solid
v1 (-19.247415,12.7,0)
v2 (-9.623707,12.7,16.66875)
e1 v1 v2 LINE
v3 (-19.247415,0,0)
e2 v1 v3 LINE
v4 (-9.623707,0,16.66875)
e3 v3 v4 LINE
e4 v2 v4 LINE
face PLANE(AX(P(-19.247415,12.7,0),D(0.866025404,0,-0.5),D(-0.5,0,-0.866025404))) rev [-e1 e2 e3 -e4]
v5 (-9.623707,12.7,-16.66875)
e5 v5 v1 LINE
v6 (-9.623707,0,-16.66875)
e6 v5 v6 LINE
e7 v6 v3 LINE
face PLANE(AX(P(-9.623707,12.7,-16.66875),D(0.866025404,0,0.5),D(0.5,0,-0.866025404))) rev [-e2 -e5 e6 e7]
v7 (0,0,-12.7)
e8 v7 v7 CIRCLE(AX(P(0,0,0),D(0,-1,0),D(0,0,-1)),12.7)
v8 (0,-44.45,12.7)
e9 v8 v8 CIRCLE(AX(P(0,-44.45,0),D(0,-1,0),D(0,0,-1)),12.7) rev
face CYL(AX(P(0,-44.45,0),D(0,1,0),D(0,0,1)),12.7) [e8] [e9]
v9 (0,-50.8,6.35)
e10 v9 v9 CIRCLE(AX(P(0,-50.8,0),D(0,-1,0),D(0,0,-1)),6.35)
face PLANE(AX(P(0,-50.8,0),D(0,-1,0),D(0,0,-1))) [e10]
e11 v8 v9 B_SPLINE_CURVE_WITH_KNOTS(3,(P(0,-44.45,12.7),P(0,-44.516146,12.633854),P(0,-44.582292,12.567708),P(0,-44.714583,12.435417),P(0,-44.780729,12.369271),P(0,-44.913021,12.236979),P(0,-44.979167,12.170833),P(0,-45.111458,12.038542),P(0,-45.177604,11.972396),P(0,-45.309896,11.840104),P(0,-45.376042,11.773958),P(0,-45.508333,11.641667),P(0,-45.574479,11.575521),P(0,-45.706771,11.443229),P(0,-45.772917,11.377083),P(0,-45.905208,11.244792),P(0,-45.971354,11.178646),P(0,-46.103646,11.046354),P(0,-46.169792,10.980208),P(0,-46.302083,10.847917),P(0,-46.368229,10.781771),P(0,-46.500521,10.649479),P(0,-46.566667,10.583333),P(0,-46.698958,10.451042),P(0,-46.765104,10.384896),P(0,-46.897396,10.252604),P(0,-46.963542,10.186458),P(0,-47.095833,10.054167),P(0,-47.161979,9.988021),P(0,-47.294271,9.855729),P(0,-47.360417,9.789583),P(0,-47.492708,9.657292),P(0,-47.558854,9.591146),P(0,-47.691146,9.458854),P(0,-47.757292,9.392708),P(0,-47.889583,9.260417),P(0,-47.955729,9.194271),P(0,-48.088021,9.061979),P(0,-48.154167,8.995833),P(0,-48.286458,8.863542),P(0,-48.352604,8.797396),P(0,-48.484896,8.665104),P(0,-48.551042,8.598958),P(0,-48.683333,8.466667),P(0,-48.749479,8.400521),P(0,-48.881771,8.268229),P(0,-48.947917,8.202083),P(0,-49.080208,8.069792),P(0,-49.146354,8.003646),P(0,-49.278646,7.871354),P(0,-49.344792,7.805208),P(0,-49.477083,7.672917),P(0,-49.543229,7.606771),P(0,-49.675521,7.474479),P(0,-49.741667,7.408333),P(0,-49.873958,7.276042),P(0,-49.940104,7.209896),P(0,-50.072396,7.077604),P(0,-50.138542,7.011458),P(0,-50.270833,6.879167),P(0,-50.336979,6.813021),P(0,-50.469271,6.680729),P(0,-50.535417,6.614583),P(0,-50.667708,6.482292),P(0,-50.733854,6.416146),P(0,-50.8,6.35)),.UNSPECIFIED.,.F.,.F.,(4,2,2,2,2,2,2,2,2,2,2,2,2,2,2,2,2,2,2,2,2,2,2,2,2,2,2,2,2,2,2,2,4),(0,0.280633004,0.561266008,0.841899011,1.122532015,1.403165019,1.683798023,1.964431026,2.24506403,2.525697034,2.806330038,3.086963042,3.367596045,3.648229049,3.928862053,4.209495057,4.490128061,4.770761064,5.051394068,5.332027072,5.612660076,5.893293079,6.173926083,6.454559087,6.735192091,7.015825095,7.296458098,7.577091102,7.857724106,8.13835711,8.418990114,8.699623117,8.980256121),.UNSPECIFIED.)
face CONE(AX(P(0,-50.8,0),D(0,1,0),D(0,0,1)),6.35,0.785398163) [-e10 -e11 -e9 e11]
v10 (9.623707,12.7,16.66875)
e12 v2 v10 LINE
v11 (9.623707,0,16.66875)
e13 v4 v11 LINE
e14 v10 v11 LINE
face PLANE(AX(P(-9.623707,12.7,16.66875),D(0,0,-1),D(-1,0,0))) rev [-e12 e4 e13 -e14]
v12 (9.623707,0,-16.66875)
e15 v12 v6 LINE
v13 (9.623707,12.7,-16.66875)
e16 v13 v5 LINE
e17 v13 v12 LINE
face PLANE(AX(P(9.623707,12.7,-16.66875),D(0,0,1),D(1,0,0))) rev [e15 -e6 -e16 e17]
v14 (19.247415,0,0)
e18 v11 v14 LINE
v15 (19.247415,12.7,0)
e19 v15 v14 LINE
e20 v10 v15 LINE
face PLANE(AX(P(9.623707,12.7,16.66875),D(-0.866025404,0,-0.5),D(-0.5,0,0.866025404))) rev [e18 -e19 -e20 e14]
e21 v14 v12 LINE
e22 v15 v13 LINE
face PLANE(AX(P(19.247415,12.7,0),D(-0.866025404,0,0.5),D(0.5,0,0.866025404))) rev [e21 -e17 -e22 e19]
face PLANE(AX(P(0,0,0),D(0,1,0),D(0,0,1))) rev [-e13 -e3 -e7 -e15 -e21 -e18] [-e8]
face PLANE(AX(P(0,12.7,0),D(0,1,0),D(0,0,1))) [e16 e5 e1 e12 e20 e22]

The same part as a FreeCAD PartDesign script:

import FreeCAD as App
import Part
import Sketcher
Q = App.Units.Quantity


def edges_at(feature, points):
    """Names of the edges that pass closest to the given points."""
    edges = feature.Shape.Edges
    near = lambda p: min(range(len(edges)), key=lambda i: edges[i].distToShape(Part.Vertex(*p))[0])
    return sorted({f"Edge{near(p) + 1}" for p in points})


def add_polygon(sketch, points):
    """Adds a closed chain of lines whose ends are joined by coincident constraints."""
    first, n = sketch.GeometryCount, len(points)
    for a, b in zip(points, points[1:] + points[:1]):
        sketch.addGeometry(Part.LineSegment(App.Vector(*a, 0), App.Vector(*b, 0)), False)
    for i in range(n):
        sketch.addConstraint(Sketcher.Constraint("Coincident", first + i, 2, first + (i + 1) % n, 1))

doc = App.newDocument("Part")
body = doc.addObject("PartDesign::Body", "Body")

# Sketch on XZ plane
sketch1 = doc.addObject("Sketcher::SketchObject", "Sketch")
body.addObject(sketch1)
sketch1.AttachmentSupport = (doc.XZ_Plane, [""])
sketch1.MapMode = "FlatFace"
add_polygon(sketch1, [(19, 0), (10, -17), (-10, -17), (-19, 0), (-10, 17), (10, 17)])  # lines 0-5
sketch1.addConstraint([
    Sketcher.Constraint("Horizontal", 1),
    Sketcher.Constraint("Horizontal", 4),
    Sketcher.Constraint("Symmetric", 0, 2, 3, 2, -1, 1),
    Sketcher.Constraint("Symmetric", 2, 2, 5, 2, -1, 1),
    Sketcher.Constraint("PointOnObject", 2, 2, -1),
    Sketcher.Constraint("Parallel", 2, 5),
    Sketcher.Constraint("Vertical", 1, 2, 3, 2),
    Sketcher.Constraint("Angle", 0, Q("-120 deg")),
    Sketcher.Constraint("DistanceY", 0, 2, -1, 1, Q("0.65625 in")),
    Sketcher.Constraint("DistanceX", 1, 2, 1, 1, 19.247415),
])
pad1 = doc.addObject("PartDesign::Pad", "Pad")
body.addObject(pad1)
pad1.Profile = sketch1
pad1.Length = Q("0.5 in")
pad1.Reversed = True

# Sketch on XZ plane
sketch2 = doc.addObject("Sketcher::SketchObject", "Sketch001")
body.addObject(sketch2)
sketch2.AttachmentSupport = (doc.XZ_Plane, [""])
sketch2.MapMode = "FlatFace"
sketch2.addGeometry(Part.Circle(App.Vector(0, 0, 0), App.Vector(0, 0, 1), 13), False)
sketch2.addConstraint([
    Sketcher.Constraint("Coincident", 0, 3, -1, 1),
    Sketcher.Constraint("Diameter", 0, Q("1 in")),
])
pad2 = doc.addObject("PartDesign::Pad", "Pad001")
body.addObject(pad2)
pad2.Profile = sketch2
pad2.Length = Q("1.75 in")

# Sketch on XZ plane
sketch3 = doc.addObject("Sketcher::SketchObject", "Sketch002")
body.addObject(sketch3)
sketch3.AttachmentSupport = (doc.XZ_Plane, [""])
sketch3.MapMode = "FlatFace"
sketch3.AttachmentOffset = App.Placement(App.Vector(0, 0, 1.75 * 25.4), App.Rotation())
sketch3.addGeometry(Part.Circle(App.Vector(0, 0, 0), App.Vector(0, 0, 1), 13), False)
sketch3.addConstraint([
    Sketcher.Constraint("Coincident", 0, 3, -1, 1),
    Sketcher.Constraint("Diameter", 0, Q("1 in")),
])
pad3 = doc.addObject("PartDesign::Pad", "Pad002")
body.addObject(pad3)
pad3.Profile = sketch3
pad3.Length = Q("0.25 in")
doc.recompute()

chamfer = doc.addObject("PartDesign::Chamfer", "Chamfer")
body.addObject(chamfer)
chamfer.Base = (pad3, edges_at(pad3, [(0, -50.8, 12.7)]))
chamfer.Size = Q("0.25 in")

doc.recompute()
